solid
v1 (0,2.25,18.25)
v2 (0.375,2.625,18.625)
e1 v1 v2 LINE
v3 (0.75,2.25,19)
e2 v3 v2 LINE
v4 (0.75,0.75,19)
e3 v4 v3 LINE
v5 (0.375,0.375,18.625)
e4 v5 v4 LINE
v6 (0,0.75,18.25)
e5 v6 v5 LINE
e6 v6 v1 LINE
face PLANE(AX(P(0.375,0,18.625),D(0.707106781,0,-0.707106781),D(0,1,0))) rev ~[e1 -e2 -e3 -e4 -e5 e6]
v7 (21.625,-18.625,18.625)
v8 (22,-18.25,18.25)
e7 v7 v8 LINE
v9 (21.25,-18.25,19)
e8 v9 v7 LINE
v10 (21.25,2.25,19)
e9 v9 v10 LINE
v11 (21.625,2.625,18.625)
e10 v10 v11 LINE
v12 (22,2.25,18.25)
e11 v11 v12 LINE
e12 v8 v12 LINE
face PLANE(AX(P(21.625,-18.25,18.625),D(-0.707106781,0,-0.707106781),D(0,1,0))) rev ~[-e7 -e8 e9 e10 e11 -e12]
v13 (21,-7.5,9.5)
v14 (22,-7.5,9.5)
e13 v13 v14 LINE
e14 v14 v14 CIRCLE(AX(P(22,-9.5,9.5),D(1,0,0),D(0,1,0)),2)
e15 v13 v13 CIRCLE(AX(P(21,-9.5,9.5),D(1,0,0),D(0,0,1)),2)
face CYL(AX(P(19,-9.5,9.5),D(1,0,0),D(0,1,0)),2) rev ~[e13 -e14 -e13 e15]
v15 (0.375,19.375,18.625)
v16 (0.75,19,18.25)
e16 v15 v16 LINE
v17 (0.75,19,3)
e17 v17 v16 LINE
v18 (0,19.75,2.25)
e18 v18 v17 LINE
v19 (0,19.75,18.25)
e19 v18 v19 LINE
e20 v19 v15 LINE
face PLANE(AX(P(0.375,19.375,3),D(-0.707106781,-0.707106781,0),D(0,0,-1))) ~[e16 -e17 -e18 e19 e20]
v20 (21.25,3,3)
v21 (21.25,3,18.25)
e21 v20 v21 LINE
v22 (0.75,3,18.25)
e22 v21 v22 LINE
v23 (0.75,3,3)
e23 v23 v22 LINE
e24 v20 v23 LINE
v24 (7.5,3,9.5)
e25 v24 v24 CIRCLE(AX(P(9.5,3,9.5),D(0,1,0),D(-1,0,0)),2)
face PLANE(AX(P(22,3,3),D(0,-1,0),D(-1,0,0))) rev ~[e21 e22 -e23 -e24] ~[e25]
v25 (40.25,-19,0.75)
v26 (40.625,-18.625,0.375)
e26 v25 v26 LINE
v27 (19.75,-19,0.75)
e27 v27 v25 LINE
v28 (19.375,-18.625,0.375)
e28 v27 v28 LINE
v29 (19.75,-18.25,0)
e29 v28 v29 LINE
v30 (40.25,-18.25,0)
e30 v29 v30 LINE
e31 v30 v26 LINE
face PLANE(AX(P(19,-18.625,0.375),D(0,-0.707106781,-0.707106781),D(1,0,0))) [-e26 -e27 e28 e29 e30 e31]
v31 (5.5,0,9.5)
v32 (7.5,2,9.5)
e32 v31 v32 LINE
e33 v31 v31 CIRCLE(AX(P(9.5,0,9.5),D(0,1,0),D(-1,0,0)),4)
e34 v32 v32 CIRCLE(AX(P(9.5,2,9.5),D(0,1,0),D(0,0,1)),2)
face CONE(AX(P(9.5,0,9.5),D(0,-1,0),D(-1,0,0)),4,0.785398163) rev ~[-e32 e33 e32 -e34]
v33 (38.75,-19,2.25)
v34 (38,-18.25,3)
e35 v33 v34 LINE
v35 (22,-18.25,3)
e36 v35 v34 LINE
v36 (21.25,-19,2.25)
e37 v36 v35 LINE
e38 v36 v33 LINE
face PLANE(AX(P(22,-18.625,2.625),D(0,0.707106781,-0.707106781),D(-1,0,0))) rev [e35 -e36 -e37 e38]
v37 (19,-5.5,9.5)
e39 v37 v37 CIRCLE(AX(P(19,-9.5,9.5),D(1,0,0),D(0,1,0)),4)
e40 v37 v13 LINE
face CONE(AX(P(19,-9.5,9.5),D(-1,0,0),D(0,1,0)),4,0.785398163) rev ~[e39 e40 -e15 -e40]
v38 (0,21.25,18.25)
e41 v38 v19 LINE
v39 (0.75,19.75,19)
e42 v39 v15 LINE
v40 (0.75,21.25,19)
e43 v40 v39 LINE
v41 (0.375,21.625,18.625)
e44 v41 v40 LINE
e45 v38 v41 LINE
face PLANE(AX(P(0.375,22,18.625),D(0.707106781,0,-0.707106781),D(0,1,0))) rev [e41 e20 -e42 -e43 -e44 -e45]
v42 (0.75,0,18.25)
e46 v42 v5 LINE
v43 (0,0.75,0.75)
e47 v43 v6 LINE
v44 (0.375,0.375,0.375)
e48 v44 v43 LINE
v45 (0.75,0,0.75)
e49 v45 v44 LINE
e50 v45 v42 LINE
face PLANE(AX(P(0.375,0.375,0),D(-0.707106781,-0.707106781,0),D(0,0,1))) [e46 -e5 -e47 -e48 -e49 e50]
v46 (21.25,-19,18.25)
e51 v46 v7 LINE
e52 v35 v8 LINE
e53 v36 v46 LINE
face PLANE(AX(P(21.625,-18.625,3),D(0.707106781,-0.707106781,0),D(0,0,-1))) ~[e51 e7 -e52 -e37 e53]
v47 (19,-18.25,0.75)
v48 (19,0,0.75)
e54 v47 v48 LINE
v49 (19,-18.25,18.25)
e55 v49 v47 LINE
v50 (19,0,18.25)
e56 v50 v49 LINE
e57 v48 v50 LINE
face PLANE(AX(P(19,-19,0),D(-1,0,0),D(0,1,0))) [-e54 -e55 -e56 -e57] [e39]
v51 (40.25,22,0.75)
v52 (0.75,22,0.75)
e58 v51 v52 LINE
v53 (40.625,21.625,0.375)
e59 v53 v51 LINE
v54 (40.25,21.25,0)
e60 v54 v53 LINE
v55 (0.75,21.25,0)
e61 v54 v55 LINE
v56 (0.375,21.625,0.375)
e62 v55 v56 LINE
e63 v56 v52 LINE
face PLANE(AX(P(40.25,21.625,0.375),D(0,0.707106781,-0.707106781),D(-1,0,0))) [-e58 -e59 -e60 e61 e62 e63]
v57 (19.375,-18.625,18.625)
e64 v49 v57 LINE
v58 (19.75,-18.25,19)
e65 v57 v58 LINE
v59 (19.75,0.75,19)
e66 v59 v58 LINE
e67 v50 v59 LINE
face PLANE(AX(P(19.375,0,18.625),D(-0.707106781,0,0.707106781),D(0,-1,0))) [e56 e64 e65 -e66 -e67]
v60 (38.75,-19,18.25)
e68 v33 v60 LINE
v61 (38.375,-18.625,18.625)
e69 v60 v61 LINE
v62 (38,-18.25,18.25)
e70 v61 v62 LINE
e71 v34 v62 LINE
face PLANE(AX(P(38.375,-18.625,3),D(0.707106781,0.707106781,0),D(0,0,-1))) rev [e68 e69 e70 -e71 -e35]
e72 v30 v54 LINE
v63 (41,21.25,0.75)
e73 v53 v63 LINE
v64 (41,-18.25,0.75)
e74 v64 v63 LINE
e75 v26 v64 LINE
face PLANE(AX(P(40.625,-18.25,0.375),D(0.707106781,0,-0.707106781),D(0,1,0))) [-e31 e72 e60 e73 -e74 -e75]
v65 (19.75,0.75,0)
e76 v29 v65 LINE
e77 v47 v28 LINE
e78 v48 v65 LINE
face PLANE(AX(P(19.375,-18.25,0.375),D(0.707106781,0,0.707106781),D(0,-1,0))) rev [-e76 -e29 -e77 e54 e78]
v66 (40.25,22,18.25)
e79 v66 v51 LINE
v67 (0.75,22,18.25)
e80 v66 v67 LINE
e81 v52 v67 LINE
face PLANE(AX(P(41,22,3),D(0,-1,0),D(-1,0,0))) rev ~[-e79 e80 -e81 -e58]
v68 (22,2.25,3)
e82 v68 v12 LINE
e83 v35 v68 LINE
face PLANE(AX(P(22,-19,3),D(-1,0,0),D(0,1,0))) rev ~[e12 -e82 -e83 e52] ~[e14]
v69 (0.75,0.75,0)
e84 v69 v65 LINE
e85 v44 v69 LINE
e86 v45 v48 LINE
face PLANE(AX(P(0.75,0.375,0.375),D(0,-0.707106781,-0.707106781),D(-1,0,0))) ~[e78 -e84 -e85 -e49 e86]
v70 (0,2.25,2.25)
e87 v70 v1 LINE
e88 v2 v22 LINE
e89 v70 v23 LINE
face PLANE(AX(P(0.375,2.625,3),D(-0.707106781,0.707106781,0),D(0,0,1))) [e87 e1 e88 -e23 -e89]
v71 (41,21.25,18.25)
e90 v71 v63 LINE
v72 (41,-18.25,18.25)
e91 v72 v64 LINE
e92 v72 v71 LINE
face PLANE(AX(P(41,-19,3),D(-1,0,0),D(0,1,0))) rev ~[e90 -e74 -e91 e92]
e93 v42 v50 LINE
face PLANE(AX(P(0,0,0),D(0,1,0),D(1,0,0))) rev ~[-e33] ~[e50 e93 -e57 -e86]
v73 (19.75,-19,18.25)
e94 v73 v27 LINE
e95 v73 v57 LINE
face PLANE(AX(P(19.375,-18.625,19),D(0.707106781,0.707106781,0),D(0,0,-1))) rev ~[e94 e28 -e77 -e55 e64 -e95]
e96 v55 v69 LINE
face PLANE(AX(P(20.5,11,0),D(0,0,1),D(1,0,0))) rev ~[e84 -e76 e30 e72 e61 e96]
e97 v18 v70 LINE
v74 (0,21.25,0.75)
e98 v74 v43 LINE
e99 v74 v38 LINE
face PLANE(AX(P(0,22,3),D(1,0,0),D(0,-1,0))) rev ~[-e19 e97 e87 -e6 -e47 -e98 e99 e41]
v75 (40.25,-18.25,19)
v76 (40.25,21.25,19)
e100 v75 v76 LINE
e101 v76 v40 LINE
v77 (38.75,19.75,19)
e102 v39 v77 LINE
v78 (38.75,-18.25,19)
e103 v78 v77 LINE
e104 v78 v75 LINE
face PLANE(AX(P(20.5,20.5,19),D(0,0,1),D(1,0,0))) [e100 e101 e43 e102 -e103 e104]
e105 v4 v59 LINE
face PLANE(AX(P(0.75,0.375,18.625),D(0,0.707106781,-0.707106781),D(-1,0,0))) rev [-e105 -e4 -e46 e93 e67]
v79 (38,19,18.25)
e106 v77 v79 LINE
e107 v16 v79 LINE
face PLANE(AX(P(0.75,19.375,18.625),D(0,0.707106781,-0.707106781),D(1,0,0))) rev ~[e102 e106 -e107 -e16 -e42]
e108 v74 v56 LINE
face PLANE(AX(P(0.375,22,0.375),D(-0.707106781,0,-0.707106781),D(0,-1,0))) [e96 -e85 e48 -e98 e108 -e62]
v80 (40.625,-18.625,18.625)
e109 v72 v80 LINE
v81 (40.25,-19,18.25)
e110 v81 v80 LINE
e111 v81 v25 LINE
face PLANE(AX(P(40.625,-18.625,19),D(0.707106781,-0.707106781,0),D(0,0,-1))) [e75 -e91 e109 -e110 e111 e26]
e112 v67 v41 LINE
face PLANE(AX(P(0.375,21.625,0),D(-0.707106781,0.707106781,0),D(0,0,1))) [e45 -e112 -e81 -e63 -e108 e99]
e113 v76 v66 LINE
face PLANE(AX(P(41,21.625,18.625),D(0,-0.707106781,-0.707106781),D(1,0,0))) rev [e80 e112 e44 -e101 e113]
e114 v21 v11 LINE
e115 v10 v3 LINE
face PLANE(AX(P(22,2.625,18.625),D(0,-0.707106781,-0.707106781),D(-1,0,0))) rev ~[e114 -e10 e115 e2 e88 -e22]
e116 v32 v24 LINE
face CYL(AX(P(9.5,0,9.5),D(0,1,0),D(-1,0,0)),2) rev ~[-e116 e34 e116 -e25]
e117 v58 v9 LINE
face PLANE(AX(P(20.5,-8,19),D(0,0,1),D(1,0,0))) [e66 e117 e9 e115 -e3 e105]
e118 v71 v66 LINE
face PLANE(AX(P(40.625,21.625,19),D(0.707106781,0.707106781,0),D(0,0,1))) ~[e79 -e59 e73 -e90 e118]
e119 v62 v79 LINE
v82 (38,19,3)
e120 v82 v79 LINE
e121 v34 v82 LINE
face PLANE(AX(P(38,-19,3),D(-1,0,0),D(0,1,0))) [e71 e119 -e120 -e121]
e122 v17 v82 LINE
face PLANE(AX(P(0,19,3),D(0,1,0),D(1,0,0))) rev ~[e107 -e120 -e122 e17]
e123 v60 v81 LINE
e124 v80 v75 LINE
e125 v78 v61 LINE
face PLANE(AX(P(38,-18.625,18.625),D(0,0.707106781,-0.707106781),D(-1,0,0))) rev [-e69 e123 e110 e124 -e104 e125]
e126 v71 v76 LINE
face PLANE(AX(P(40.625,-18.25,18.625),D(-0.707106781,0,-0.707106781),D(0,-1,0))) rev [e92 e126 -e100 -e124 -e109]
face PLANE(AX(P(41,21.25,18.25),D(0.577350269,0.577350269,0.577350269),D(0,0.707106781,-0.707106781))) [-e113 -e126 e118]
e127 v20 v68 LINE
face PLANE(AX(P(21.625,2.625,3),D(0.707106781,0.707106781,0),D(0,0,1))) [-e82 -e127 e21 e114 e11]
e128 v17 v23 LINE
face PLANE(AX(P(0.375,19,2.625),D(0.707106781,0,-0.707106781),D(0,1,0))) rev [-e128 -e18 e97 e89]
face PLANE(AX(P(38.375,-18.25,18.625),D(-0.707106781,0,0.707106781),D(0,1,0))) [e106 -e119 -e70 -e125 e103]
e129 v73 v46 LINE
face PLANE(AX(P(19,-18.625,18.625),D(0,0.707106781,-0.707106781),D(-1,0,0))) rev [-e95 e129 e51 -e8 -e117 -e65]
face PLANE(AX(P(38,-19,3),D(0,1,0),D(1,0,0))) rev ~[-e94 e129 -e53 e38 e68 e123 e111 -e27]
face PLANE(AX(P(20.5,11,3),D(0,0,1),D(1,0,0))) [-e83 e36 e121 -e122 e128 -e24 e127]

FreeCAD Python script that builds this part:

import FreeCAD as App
import Part
import Sketcher

V = App.Vector


def edges_at(feature, points):
    """Names of the edges that pass closest to the given points."""
    edges = feature.Shape.Edges
    near = lambda p: min(range(len(edges)), key=lambda i: edges[i].distToShape(Part.Vertex(*p))[0])
    return sorted({f"Edge{near(p) + 1}" for p in points})

doc = App.newDocument("Part")
body = doc.addObject("PartDesign::Body", "Body")

# Sketch on XY plane
sketch1 = body.newObject("Sketcher::SketchObject", "Sketch")
sketch1.AttachmentSupport = (doc.getObject("XY_Plane"), [""])
sketch1.MapMode = "FlatFace"
sketch1.addGeometry([
    Part.LineSegment(V(0, 22, 0), V(0, 0, 0)),  # 0
    Part.LineSegment(V(0, 0, 0), V(19, 0, 0)),  # 1
    Part.LineSegment(V(19, 0, 0), V(19, -19, 0)),  # 2
    Part.LineSegment(V(19, -19, 0), V(41, -19, 0)),  # 3
    Part.LineSegment(V(41, -19, 0), V(41, 22, 0)),  # 4
    Part.LineSegment(V(41, 22, 0), V(0, 22, 0)),  # 5
], False)
sketch1.addConstraint([
    Sketcher.Constraint("Coincident", 0, 2, 1, 1),
    Sketcher.Constraint("Coincident", 1, 2, 2, 1),
    Sketcher.Constraint("Coincident", 2, 2, 3, 1),
    Sketcher.Constraint("Coincident", 3, 2, 4, 1),
    Sketcher.Constraint("Coincident", 4, 2, 5, 1),
    Sketcher.Constraint("Coincident", 5, 2, 0, 1),
    Sketcher.Constraint("Vertical", 0),
    Sketcher.Constraint("Horizontal", 1),
    Sketcher.Constraint("Vertical", 2),
    Sketcher.Constraint("Horizontal", 3),
    Sketcher.Constraint("Vertical", 4),
    Sketcher.Constraint("Horizontal", 5),
    Sketcher.Constraint("Coincident", 0, 2, -1, 1),
    Sketcher.Constraint("Equal", 3, 0),
    Sketcher.Constraint("Equal", 1, 2),
    Sketcher.Constraint("DistanceX", 1, 1, 1, 2, 19.0),
    Sketcher.Constraint("DistanceX", 3, 1, 3, 2, 22.0),
])
pad1 = body.newObject("PartDesign::Pad", "Pad")
pad1.Profile = sketch1
pad1.Length = 3

# Sketch on XY plane
sketch2 = body.newObject("Sketcher::SketchObject", "Sketch001")
sketch2.AttachmentSupport = (doc.getObject("XY_Plane"), [""])
sketch2.MapMode = "FlatFace"
sketch2.AttachmentOffset = App.Placement(V(0, 0, 3), App.Rotation())
sketch2.addGeometry([
    Part.LineSegment(V(41, 22, 0), V(0, 22, 0)),  # 0
    Part.LineSegment(V(0, 22, 0), V(0, 19, 0)),  # 1
    Part.LineSegment(V(0, 19, 0), V(38, 19, 0)),  # 2
    Part.LineSegment(V(38, 19, 0), V(38, -19, 0)),  # 3
    Part.LineSegment(V(38, -19, 0), V(41, -19, 0)),  # 4
    Part.LineSegment(V(41, -19, 0), V(41, 22, 0)),  # 5
    Part.LineSegment(V(22, 3, 0), V(0, 3, 0)),  # 6
    Part.LineSegment(V(0, 3, 0), V(0, 0, 0)),  # 7
    Part.LineSegment(V(0, 0, 0), V(19, 0, 0)),  # 8
    Part.LineSegment(V(19, 0, 0), V(19, -19, 0)),  # 9
    Part.LineSegment(V(19, -19, 0), V(22, -19, 0)),  # 10
    Part.LineSegment(V(22, -19, 0), V(22, 3, 0)),  # 11
], False)
sketch2.addConstraint([
    Sketcher.Constraint("Coincident", 0, 2, 1, 1),
    Sketcher.Constraint("Coincident", 1, 2, 2, 1),
    Sketcher.Constraint("Coincident", 2, 2, 3, 1),
    Sketcher.Constraint("Coincident", 3, 2, 4, 1),
    Sketcher.Constraint("Coincident", 4, 2, 5, 1),
    Sketcher.Constraint("Coincident", 5, 2, 0, 1),
    Sketcher.Constraint("Coincident", 6, 2, 7, 1),
    Sketcher.Constraint("Coincident", 7, 2, 8, 1),
    Sketcher.Constraint("Coincident", 8, 2, 9, 1),
    Sketcher.Constraint("Coincident", 9, 2, 10, 1),
    Sketcher.Constraint("Coincident", 10, 2, 11, 1),
    Sketcher.Constraint("Coincident", 11, 2, 6, 1),
    Sketcher.Constraint("Horizontal", 0),
    Sketcher.Constraint("Vertical", 1),
    Sketcher.Constraint("Horizontal", 2),
    Sketcher.Constraint("Vertical", 3),
    Sketcher.Constraint("Horizontal", 4),
    Sketcher.Constraint("Vertical", 5),
    Sketcher.Constraint("Horizontal", 6),
    Sketcher.Constraint("Vertical", 7),
    Sketcher.Constraint("Horizontal", 8),
    Sketcher.Constraint("Vertical", 9),
    Sketcher.Constraint("Horizontal", 10),
    Sketcher.Constraint("Vertical", 11),
    Sketcher.Constraint("Coincident", 7, 2, -1, 1),
    Sketcher.Constraint("PointOnObject", 0, 2, -2),
    Sketcher.Constraint("Horizontal", 4, 2, 9, 2),
    Sketcher.Constraint("Equal", 4, 10),
    Sketcher.Constraint("Equal", 10, 1),
    Sketcher.Constraint("Equal", 2, 3),
    Sketcher.Constraint("Equal", 1, 7),
    Sketcher.Constraint("Equal", 8, 9),
    Sketcher.Constraint("DistanceX", 0, 2, 0, 1, 41.0),
    Sketcher.Constraint("DistanceX", 2, 1, 2, 2, 38.0),
    Sketcher.Constraint("DistanceX", 6, 2, 6, 1, 22.0),
])
pad2 = body.newObject("PartDesign::Pad", "Pad001")
pad2.Profile = sketch2
pad2.Length = 16

# Sketch on XZ plane
sketch3 = body.newObject("Sketcher::SketchObject", "Sketch002")
sketch3.AttachmentSupport = (doc.getObject("XZ_Plane"), [""])
sketch3.MapMode = "FlatFace"
sketch3.addGeometry(Part.Circle(V(9.5, 9.5, 0), V(0, 0, 1), 2), False)
sketch3.addConstraint([
    Sketcher.Constraint("Diameter", 0, 4.0),
    Sketcher.Constraint("DistanceX", -1, 1, 0, 3, 9.5),
    Sketcher.Constraint("DistanceY", -1, 1, 0, 3, 9.5),
])
doc.recompute()
hole = body.newObject("PartDesign::Hole", "Hole")
hole.Profile = sketch3
hole.ThreadType = "None"
hole.Diameter = 4
hole.DepthType = "Dimension"
hole.Depth = 12
hole.DrillPoint = "Angled"
hole.DrillPointAngle = 118
hole.HoleCutType = "Countersink"
hole.HoleCutDiameter = 8
hole.HoleCutCountersinkAngle = 90

# Sketch on YZ plane
sketch4 = body.newObject("Sketcher::SketchObject", "Sketch003")
sketch4.AttachmentSupport = (doc.getObject("YZ_Plane"), [""])
sketch4.MapMode = "FlatFace"
sketch4.AttachmentOffset = App.Placement(V(0, 0, 19), App.Rotation())
sketch4.addGeometry(Part.Circle(V(-9.5, 9.5, 0), V(0, 0, 1), 2), False)
sketch4.addConstraint([
    Sketcher.Constraint("Diameter", 0, 4.0),
    Sketcher.Constraint("DistanceX", 0, 3, -1, 1, 9.5),
    Sketcher.Constraint("DistanceY", -1, 1, 0, 3, 9.5),
])
doc.recompute()
hole2 = body.newObject("PartDesign::Hole", "Hole001")
hole2.Profile = sketch4
hole2.ThreadType = "None"
hole2.Diameter = 4
hole2.DepthType = "Dimension"
hole2.Depth = 12
hole2.DrillPoint = "Angled"
hole2.DrillPointAngle = 118
hole2.HoleCutType = "Countersink"
hole2.HoleCutDiameter = 8
hole2.HoleCutCountersinkAngle = 90
hole2.Reversed = True
doc.recompute()

chamfer = body.newObject("PartDesign::Chamfer", "Chamfer")
chamfer.Base = (hole2, edges_at(hole2, [
    (19, -19, 9.5),
    (20.5, -19, 19),
    (22, -19, 11),
    (30, -19, 3),
    (38, -19, 11),
    (39.5, -19, 19),
    (41, -19, 9.5),
    (30, -19, 0),
]))
chamfer.Size = 0.75
doc.recompute()

chamfer2 = body.newObject("PartDesign::Chamfer", "Chamfer001")
chamfer2.Base = (chamfer, edges_at(chamfer, [
    (0, 22, 9.5),
    (0, 20.5, 19),
    (0, 19, 11),
    (0, 11, 3),
    (0, 3, 11),
    (0, 1.5, 19),
    (0, 0, 9.5),
    (0, 11, 0),
]))
chamfer2.Size = 0.75
doc.recompute()

chamfer3 = body.newObject("PartDesign::Chamfer", "Chamfer002")
chamfer3.Base = (chamfer2, edges_at(chamfer2, [
    (19, -9.125, 19),
    (9.875, 0, 19),
    (11.375, 3, 19),
    (22, -7.625, 19),
    (38, 0.375, 19),
    (19.375, 19, 19),
    (20.875, 22, 19),
    (41, 1.875, 19),
    (41, 22, 9.5),
]))
chamfer3.Size = 0.75
doc.recompute()

chamfer4 = body.newObject("PartDesign::Chamfer", "Chamfer003")
chamfer4.Base = (chamfer3, edges_at(chamfer3, [(22, 3, 10.625)]))
chamfer4.Size = 0.75
doc.recompute()

chamfer5 = body.newObject("PartDesign::Chamfer", "Chamfer004")
chamfer5.Base = (chamfer4, edges_at(chamfer4, [(19, -9.125, 0), (9.875, 0, 0)]))
chamfer5.Size = 0.75
doc.recompute()

chamfer6 = body.newObject("PartDesign::Chamfer", "Chamfer005")
chamfer6.Base = (chamfer5, edges_at(chamfer5, [(41, 1.5, 0)]))
chamfer6.Size = 0.75
doc.recompute()

chamfer7 = body.newObject("PartDesign::Chamfer", "Chamfer006")
chamfer7.Base = (chamfer6, edges_at(chamfer6, [(20.5, 22, 0)]))
chamfer7.Size = 0.75

doc.recompute()
